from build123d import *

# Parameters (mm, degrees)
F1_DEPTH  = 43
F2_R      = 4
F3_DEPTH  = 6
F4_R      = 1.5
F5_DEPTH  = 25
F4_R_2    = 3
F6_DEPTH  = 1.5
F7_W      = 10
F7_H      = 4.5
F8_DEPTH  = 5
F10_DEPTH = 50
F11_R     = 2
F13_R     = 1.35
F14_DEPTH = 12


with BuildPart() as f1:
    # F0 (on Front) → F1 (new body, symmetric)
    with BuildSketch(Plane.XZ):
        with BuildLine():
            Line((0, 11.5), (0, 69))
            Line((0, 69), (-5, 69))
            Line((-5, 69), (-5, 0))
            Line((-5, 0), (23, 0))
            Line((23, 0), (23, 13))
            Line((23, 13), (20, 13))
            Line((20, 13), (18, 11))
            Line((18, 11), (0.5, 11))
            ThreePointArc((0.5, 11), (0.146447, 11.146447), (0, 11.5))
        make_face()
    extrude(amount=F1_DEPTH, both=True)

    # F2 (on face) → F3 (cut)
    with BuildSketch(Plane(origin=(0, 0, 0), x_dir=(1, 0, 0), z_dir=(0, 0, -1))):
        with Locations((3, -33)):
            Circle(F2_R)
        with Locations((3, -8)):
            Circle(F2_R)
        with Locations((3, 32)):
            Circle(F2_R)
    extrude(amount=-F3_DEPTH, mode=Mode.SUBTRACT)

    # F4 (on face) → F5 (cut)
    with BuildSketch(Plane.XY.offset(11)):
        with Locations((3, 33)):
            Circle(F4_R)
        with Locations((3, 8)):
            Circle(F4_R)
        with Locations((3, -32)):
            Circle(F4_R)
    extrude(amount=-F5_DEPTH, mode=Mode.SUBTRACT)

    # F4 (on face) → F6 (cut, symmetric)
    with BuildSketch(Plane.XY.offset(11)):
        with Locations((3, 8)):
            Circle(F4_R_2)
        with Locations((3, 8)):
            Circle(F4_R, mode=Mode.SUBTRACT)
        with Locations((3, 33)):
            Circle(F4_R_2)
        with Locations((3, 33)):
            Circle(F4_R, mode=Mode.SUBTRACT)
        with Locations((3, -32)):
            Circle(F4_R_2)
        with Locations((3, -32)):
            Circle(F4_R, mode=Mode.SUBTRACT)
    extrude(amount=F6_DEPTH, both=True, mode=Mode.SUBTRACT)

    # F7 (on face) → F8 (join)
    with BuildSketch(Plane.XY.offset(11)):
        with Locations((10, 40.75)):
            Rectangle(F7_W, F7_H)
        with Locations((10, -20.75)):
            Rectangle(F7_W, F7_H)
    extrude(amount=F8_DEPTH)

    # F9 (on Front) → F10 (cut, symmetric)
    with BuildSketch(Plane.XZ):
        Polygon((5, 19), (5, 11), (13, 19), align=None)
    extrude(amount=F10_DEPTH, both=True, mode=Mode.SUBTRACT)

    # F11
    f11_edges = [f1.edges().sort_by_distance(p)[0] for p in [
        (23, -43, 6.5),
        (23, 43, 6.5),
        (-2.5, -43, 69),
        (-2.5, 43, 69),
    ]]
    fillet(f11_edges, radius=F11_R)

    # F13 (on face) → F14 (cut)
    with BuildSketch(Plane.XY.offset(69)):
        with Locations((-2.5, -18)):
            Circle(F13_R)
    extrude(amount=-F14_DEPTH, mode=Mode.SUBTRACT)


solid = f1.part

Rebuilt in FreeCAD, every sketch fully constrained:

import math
import FreeCAD as App
import Part
import Sketcher
Q = App.Units.Quantity


def edges_at(feature, points):
    """Names of the edges that pass closest to the given points."""
    edges = feature.Shape.Edges
    near = lambda p: min(range(len(edges)), key=lambda i: edges[i].distToShape(Part.Vertex(*p))[0])
    return sorted({f"Edge{near(p) + 1}" for p in points})

doc = App.newDocument("Part")
body = doc.addObject("PartDesign::Body", "Body")

sketch1 = body.newObject("Sketcher::SketchObject", "Sketch")
sketch1.AttachmentSupport = (doc.getObject("XZ_Plane"), [""])
sketch1.MapMode = "FlatFace"
sketch1.addGeometry(Part.LineSegment(App.Vector(0, 11.5, 0), App.Vector(0, 69, 0)), False)
sketch1.addGeometry(Part.LineSegment(App.Vector(0, 69, 0), App.Vector(-5, 69, 0)), False)
sketch1.addGeometry(Part.LineSegment(App.Vector(-5, 69, 0), App.Vector(-5, 0, 0)), False)
sketch1.addGeometry(Part.LineSegment(App.Vector(-5, 0, 0), App.Vector(23, 0, 0)), False)
sketch1.addGeometry(Part.LineSegment(App.Vector(23, 0, 0), App.Vector(23, 13, 0)), False)
sketch1.addGeometry(Part.LineSegment(App.Vector(23, 13, 0), App.Vector(20, 13, 0)), False)
sketch1.addGeometry(Part.LineSegment(App.Vector(20, 13, 0), App.Vector(18, 11, 0)), False)
sketch1.addGeometry(Part.LineSegment(App.Vector(18, 11, 0), App.Vector(0.5, 11, 0)), False)
sketch1.addGeometry(Part.ArcOfCircle(Part.Circle(App.Vector(0.5, 11.5, 0), App.Vector(0, 0, 1), 0.5), math.radians(-180), math.radians(-90)), False)
sketch1.addConstraint(Sketcher.Constraint("Coincident", 0, 2, 1, 1))
sketch1.addConstraint(Sketcher.Constraint("Coincident", 1, 2, 2, 1))
sketch1.addConstraint(Sketcher.Constraint("Coincident", 2, 2, 3, 1))
sketch1.addConstraint(Sketcher.Constraint("Coincident", 3, 2, 4, 1))
sketch1.addConstraint(Sketcher.Constraint("Coincident", 4, 2, 5, 1))
sketch1.addConstraint(Sketcher.Constraint("Coincident", 5, 2, 6, 1))
sketch1.addConstraint(Sketcher.Constraint("Coincident", 6, 2, 7, 1))
sketch1.addConstraint(Sketcher.Constraint("Coincident", 7, 2, 8, 2))
sketch1.addConstraint(Sketcher.Constraint("Coincident", 8, 1, 0, 1))
sketch1.addConstraint(Sketcher.Constraint("Vertical", 0))
sketch1.addConstraint(Sketcher.Constraint("Horizontal", 1))
sketch1.addConstraint(Sketcher.Constraint("Vertical", 2))
sketch1.addConstraint(Sketcher.Constraint("Horizontal", 3))
sketch1.addConstraint(Sketcher.Constraint("Vertical", 4))
sketch1.addConstraint(Sketcher.Constraint("Horizontal", 5))
sketch1.addConstraint(Sketcher.Constraint("Horizontal", 7))
sketch1.addConstraint(Sketcher.Constraint("PointOnObject", 0, 2, -2))
sketch1.addConstraint(Sketcher.Constraint("PointOnObject", 2, 2, -1))
sketch1.addConstraint(Sketcher.Constraint("Vertical", 8, 3, 7, 2))
sketch1.addConstraint(Sketcher.Constraint("Radius", 8, Q("0.500001 mm")))
sketch1.addConstraint(Sketcher.Constraint("DistanceX", 1, 2, 1, 1, Q("5 mm")))
sketch1.addConstraint(Sketcher.Constraint("DistanceX", 3, 1, 3, 2, Q("28 mm")))
sketch1.addConstraint(Sketcher.Constraint("DistanceX", 5, 2, 5, 1, Q("3 mm")))
sketch1.addConstraint(Sketcher.Constraint("DistanceY", 2, 2, 2, 1, Q("69 mm")))
sketch1.addConstraint(Sketcher.Constraint("DistanceY", 4, 1, 4, 2, Q("13 mm")))
sketch1.addConstraint(Sketcher.Constraint("Angle", 6, Q("-135 deg")))
sketch1.addConstraint(Sketcher.Constraint("DistanceX", 7, 2, 7, 1, Q("17.5 mm")))
sketch1.addConstraint(Sketcher.Constraint("DistanceY", 0, 1, 0, 2, Q("57.5 mm")))
pad1 = body.newObject("PartDesign::Pad", "Pad")
pad1.Profile = sketch1
pad1.Length = 86
pad1.Midplane = True

sketch2 = body.newObject("Sketcher::SketchObject", "Sketch001")
sketch2.AttachmentSupport = (doc.getObject("XY_Plane"), [""])
sketch2.MapMode = "FlatFace"
sketch2.addGeometry(Part.Circle(App.Vector(3, 33, 0), App.Vector(0, 0, 1), 4), False)
sketch2.addGeometry(Part.Circle(App.Vector(3, 8, 0), App.Vector(0, 0, 1), 4), False)
sketch2.addGeometry(Part.Circle(App.Vector(3, -32, 0), App.Vector(0, 0, 1), 4), False)
sketch2.addConstraint(Sketcher.Constraint("Equal", 0, 1))
sketch2.addConstraint(Sketcher.Constraint("Equal", 1, 2))
sketch2.addConstraint(Sketcher.Constraint("Vertical", 0, 3, 1, 3))
sketch2.addConstraint(Sketcher.Constraint("Vertical", 1, 3, 2, 3))
sketch2.addConstraint(Sketcher.Constraint("Diameter", 0, Q("8 mm")))
sketch2.addConstraint(Sketcher.Constraint("DistanceX", -1, 1, 0, 3, Q("3 mm")))
sketch2.addConstraint(Sketcher.Constraint("DistanceY", -1, 1, 0, 3, Q("33 mm")))
sketch2.addConstraint(Sketcher.Constraint("DistanceY", -1, 1, 1, 3, Q("8 mm")))
sketch2.addConstraint(Sketcher.Constraint("DistanceY", 2, 3, -1, 1, Q("32 mm")))
pocket1 = body.newObject("PartDesign::Pocket", "Pocket")
pocket1.Profile = sketch2
pocket1.Length = 6
pocket1.Reversed = True

sketch3 = body.newObject("Sketcher::SketchObject", "Sketch002")
sketch3.AttachmentSupport = (doc.getObject("XY_Plane"), [""])
sketch3.MapMode = "FlatFace"
sketch3.AttachmentOffset = App.Placement(App.Vector(0, 0, 11), App.Rotation())
sketch3.addGeometry(Part.Circle(App.Vector(3, 33, 0), App.Vector(0, 0, 1), 1.5), False)
sketch3.addGeometry(Part.Circle(App.Vector(3, 8, 0), App.Vector(0, 0, 1), 1.5), False)
sketch3.addGeometry(Part.Circle(App.Vector(3, -32, 0), App.Vector(0, 0, 1), 1.5), False)
sketch3.addConstraint(Sketcher.Constraint("Equal", 0, 1))
sketch3.addConstraint(Sketcher.Constraint("Equal", 1, 2))
sketch3.addConstraint(Sketcher.Constraint("Vertical", 0, 3, 1, 3))
sketch3.addConstraint(Sketcher.Constraint("Vertical", 1, 3, 2, 3))
sketch3.addConstraint(Sketcher.Constraint("Diameter", 0, Q("3 mm")))
sketch3.addConstraint(Sketcher.Constraint("DistanceX", -1, 1, 0, 3, Q("3 mm")))
sketch3.addConstraint(Sketcher.Constraint("DistanceY", -1, 1, 0, 3, Q("33 mm")))
sketch3.addConstraint(Sketcher.Constraint("DistanceY", -1, 1, 1, 3, Q("8 mm")))
sketch3.addConstraint(Sketcher.Constraint("DistanceY", 2, 3, -1, 1, Q("32 mm")))
pocket2 = body.newObject("PartDesign::Pocket", "Pocket001")
pocket2.Profile = sketch3
pocket2.Length = 25

sketch4 = body.newObject("Sketcher::SketchObject", "Sketch003")
sketch4.AttachmentSupport = (doc.getObject("XY_Plane"), [""])
sketch4.MapMode = "FlatFace"
sketch4.AttachmentOffset = App.Placement(App.Vector(0, 0, 11), App.Rotation())
sketch4.addGeometry(Part.Circle(App.Vector(3, 8, 0), App.Vector(0, 0, 1), 3), False)
sketch4.addGeometry(Part.Circle(App.Vector(3, 8, 0), App.Vector(0, 0, 1), 1.5), False)
sketch4.addGeometry(Part.Circle(App.Vector(3, 33, 0), App.Vector(0, 0, 1), 3), False)
sketch4.addGeometry(Part.Circle(App.Vector(3, 33, 0), App.Vector(0, 0, 1), 1.5), False)
sketch4.addGeometry(Part.Circle(App.Vector(3, -32, 0), App.Vector(0, 0, 1), 3), False)
sketch4.addGeometry(Part.Circle(App.Vector(3, -32, 0), App.Vector(0, 0, 1), 1.5), False)
sketch4.addConstraint(Sketcher.Constraint("Coincident", 1, 3, 0, 3))
sketch4.addConstraint(Sketcher.Constraint("Coincident", 3, 3, 2, 3))
sketch4.addConstraint(Sketcher.Constraint("Coincident", 5, 3, 4, 3))
sketch4.addConstraint(Sketcher.Constraint("Equal", 0, 2))
sketch4.addConstraint(Sketcher.Constraint("Equal", 1, 3))
sketch4.addConstraint(Sketcher.Constraint("Equal", 2, 4))
sketch4.addConstraint(Sketcher.Constraint("Equal", 3, 5))
sketch4.addConstraint(Sketcher.Constraint("Vertical", 1, 3, 2, 3))
sketch4.addConstraint(Sketcher.Constraint("Vertical", 3, 3, 4, 3))
sketch4.addConstraint(Sketcher.Constraint("Diameter", 0, Q("6 mm")))
sketch4.addConstraint(Sketcher.Constraint("Diameter", 1, Q("3 mm")))
sketch4.addConstraint(Sketcher.Constraint("DistanceX", -1, 1, 0, 3, Q("3 mm")))
sketch4.addConstraint(Sketcher.Constraint("DistanceY", -1, 1, 0, 3, Q("8 mm")))
sketch4.addConstraint(Sketcher.Constraint("DistanceY", -1, 1, 2, 3, Q("33 mm")))
sketch4.addConstraint(Sketcher.Constraint("DistanceY", 4, 3, -1, 1, Q("32 mm")))
pocket3 = body.newObject("PartDesign::Pocket", "Pocket002")
pocket3.Profile = sketch4
pocket3.Length = 3
pocket3.Midplane = True

sketch5 = body.newObject("Sketcher::SketchObject", "Sketch004")
sketch5.AttachmentSupport = (doc.getObject("XY_Plane"), [""])
sketch5.MapMode = "FlatFace"
sketch5.AttachmentOffset = App.Placement(App.Vector(0, 0, 11), App.Rotation())
sketch5.addGeometry(Part.LineSegment(App.Vector(5, 43, 0), App.Vector(5, 38.5, 0)), False)
sketch5.addGeometry(Part.LineSegment(App.Vector(5, 38.5, 0), App.Vector(15, 38.5, 0)), False)
sketch5.addGeometry(Part.LineSegment(App.Vector(15, 38.5, 0), App.Vector(15, 43, 0)), False)
sketch5.addGeometry(Part.LineSegment(App.Vector(15, 43, 0), App.Vector(5, 43, 0)), False)
sketch5.addGeometry(Part.LineSegment(App.Vector(5, -18.5, 0), App.Vector(5, -23, 0)), False)
sketch5.addGeometry(Part.LineSegment(App.Vector(5, -23, 0), App.Vector(15, -23, 0)), False)
sketch5.addGeometry(Part.LineSegment(App.Vector(15, -23, 0), App.Vector(15, -18.5, 0)), False)
sketch5.addGeometry(Part.LineSegment(App.Vector(15, -18.5, 0), App.Vector(5, -18.5, 0)), False)
sketch5.addConstraint(Sketcher.Constraint("Coincident", 0, 2, 1, 1))
sketch5.addConstraint(Sketcher.Constraint("Coincident", 1, 2, 2, 1))
sketch5.addConstraint(Sketcher.Constraint("Coincident", 2, 2, 3, 1))
sketch5.addConstraint(Sketcher.Constraint("Coincident", 3, 2, 0, 1))
sketch5.addConstraint(Sketcher.Constraint("Coincident", 4, 2, 5, 1))
sketch5.addConstraint(Sketcher.Constraint("Coincident", 5, 2, 6, 1))
sketch5.addConstraint(Sketcher.Constraint("Coincident", 6, 2, 7, 1))
sketch5.addConstraint(Sketcher.Constraint("Coincident", 7, 2, 4, 1))
sketch5.addConstraint(Sketcher.Constraint("Vertical", 0))
sketch5.addConstraint(Sketcher.Constraint("Horizontal", 1))
sketch5.addConstraint(Sketcher.Constraint("Vertical", 2))
sketch5.addConstraint(Sketcher.Constraint("Horizontal", 3))
sketch5.addConstraint(Sketcher.Constraint("Vertical", 4))
sketch5.addConstraint(Sketcher.Constraint("Horizontal", 5))
sketch5.addConstraint(Sketcher.Constraint("Vertical", 6))
sketch5.addConstraint(Sketcher.Constraint("Horizontal", 7))
sketch5.addConstraint(Sketcher.Constraint("Vertical", 3, 2, 4, 2))
sketch5.addConstraint(Sketcher.Constraint("Vertical", 2, 2, 5, 2))
sketch5.addConstraint(Sketcher.Constraint("Equal", 2, 4))
sketch5.addConstraint(Sketcher.Constraint("DistanceX", 1, 1, 1, 2, Q("10 mm")))
sketch5.addConstraint(Sketcher.Constraint("DistanceY", 0, 2, 0, 1, Q("4.5 mm")))
sketch5.addConstraint(Sketcher.Constraint("DistanceX", -1, 1, 0, 2, Q("5 mm")))
sketch5.addConstraint(Sketcher.Constraint("DistanceY", -1, 1, 2, 2, Q("43 mm")))
sketch5.addConstraint(Sketcher.Constraint("DistanceY", 4, 2, -1, 1, Q("23 mm")))
pad2 = body.newObject("PartDesign::Pad", "Pad001")
pad2.Profile = sketch5
pad2.Length = 5

sketch6 = body.newObject("Sketcher::SketchObject", "Sketch005")
sketch6.AttachmentSupport = (doc.getObject("XZ_Plane"), [""])
sketch6.MapMode = "FlatFace"
sketch6.addGeometry(Part.LineSegment(App.Vector(5, 19, 0), App.Vector(5, 11, 0)), False)
sketch6.addGeometry(Part.LineSegment(App.Vector(5, 11, 0), App.Vector(13, 19, 0)), False)
sketch6.addGeometry(Part.LineSegment(App.Vector(13, 19, 0), App.Vector(5, 19, 0)), False)
sketch6.addConstraint(Sketcher.Constraint("Coincident", 0, 2, 1, 1))
sketch6.addConstraint(Sketcher.Constraint("Coincident", 1, 2, 2, 1))
sketch6.addConstraint(Sketcher.Constraint("Coincident", 2, 2, 0, 1))
sketch6.addConstraint(Sketcher.Constraint("Vertical", 0))
sketch6.addConstraint(Sketcher.Constraint("Horizontal", 2))
sketch6.addConstraint(Sketcher.Constraint("Equal", 2, 0))
sketch6.addConstraint(Sketcher.Constraint("DistanceX", 2, 2, 2, 1, Q("8 mm")))
sketch6.addConstraint(Sketcher.Constraint("DistanceX", -1, 1, 0, 2, Q("5 mm")))
sketch6.addConstraint(Sketcher.Constraint("DistanceY", -1, 1, 0, 2, Q("11 mm")))
pocket4 = body.newObject("PartDesign::Pocket", "Pocket003")
pocket4.Profile = sketch6
pocket4.Length = 100
pocket4.Midplane = True
doc.recompute()

fillet = body.newObject("PartDesign::Fillet", "Fillet")
fillet.Base = (pocket4, edges_at(pocket4, [
    (23, -43, 6.5),
    (23, 43, 6.5),
    (-2.5, -43, 69),
    (-2.5, 43, 69),
]))
fillet.Radius = 2

sketch7 = body.newObject("Sketcher::SketchObject", "Sketch006")
sketch7.AttachmentSupport = (doc.getObject("XY_Plane"), [""])
sketch7.MapMode = "FlatFace"
sketch7.AttachmentOffset = App.Placement(App.Vector(0, 0, 69), App.Rotation())
sketch7.addGeometry(Part.Circle(App.Vector(-2.5, -18, 0), App.Vector(0, 0, 1), 1.4), False)
sketch7.addConstraint(Sketcher.Constraint("Diameter", 0, Q("2.7 mm")))
sketch7.addConstraint(Sketcher.Constraint("DistanceY", 0, 3, -1, 1, Q("18 mm")))
sketch7.addConstraint(Sketcher.Constraint("DistanceX", 0, 3, -1, 1, Q("2.5 mm")))
pocket5 = body.newObject("PartDesign::Pocket", "Pocket004")
pocket5.Profile = sketch7
pocket5.Length = 12

doc.recompute()
